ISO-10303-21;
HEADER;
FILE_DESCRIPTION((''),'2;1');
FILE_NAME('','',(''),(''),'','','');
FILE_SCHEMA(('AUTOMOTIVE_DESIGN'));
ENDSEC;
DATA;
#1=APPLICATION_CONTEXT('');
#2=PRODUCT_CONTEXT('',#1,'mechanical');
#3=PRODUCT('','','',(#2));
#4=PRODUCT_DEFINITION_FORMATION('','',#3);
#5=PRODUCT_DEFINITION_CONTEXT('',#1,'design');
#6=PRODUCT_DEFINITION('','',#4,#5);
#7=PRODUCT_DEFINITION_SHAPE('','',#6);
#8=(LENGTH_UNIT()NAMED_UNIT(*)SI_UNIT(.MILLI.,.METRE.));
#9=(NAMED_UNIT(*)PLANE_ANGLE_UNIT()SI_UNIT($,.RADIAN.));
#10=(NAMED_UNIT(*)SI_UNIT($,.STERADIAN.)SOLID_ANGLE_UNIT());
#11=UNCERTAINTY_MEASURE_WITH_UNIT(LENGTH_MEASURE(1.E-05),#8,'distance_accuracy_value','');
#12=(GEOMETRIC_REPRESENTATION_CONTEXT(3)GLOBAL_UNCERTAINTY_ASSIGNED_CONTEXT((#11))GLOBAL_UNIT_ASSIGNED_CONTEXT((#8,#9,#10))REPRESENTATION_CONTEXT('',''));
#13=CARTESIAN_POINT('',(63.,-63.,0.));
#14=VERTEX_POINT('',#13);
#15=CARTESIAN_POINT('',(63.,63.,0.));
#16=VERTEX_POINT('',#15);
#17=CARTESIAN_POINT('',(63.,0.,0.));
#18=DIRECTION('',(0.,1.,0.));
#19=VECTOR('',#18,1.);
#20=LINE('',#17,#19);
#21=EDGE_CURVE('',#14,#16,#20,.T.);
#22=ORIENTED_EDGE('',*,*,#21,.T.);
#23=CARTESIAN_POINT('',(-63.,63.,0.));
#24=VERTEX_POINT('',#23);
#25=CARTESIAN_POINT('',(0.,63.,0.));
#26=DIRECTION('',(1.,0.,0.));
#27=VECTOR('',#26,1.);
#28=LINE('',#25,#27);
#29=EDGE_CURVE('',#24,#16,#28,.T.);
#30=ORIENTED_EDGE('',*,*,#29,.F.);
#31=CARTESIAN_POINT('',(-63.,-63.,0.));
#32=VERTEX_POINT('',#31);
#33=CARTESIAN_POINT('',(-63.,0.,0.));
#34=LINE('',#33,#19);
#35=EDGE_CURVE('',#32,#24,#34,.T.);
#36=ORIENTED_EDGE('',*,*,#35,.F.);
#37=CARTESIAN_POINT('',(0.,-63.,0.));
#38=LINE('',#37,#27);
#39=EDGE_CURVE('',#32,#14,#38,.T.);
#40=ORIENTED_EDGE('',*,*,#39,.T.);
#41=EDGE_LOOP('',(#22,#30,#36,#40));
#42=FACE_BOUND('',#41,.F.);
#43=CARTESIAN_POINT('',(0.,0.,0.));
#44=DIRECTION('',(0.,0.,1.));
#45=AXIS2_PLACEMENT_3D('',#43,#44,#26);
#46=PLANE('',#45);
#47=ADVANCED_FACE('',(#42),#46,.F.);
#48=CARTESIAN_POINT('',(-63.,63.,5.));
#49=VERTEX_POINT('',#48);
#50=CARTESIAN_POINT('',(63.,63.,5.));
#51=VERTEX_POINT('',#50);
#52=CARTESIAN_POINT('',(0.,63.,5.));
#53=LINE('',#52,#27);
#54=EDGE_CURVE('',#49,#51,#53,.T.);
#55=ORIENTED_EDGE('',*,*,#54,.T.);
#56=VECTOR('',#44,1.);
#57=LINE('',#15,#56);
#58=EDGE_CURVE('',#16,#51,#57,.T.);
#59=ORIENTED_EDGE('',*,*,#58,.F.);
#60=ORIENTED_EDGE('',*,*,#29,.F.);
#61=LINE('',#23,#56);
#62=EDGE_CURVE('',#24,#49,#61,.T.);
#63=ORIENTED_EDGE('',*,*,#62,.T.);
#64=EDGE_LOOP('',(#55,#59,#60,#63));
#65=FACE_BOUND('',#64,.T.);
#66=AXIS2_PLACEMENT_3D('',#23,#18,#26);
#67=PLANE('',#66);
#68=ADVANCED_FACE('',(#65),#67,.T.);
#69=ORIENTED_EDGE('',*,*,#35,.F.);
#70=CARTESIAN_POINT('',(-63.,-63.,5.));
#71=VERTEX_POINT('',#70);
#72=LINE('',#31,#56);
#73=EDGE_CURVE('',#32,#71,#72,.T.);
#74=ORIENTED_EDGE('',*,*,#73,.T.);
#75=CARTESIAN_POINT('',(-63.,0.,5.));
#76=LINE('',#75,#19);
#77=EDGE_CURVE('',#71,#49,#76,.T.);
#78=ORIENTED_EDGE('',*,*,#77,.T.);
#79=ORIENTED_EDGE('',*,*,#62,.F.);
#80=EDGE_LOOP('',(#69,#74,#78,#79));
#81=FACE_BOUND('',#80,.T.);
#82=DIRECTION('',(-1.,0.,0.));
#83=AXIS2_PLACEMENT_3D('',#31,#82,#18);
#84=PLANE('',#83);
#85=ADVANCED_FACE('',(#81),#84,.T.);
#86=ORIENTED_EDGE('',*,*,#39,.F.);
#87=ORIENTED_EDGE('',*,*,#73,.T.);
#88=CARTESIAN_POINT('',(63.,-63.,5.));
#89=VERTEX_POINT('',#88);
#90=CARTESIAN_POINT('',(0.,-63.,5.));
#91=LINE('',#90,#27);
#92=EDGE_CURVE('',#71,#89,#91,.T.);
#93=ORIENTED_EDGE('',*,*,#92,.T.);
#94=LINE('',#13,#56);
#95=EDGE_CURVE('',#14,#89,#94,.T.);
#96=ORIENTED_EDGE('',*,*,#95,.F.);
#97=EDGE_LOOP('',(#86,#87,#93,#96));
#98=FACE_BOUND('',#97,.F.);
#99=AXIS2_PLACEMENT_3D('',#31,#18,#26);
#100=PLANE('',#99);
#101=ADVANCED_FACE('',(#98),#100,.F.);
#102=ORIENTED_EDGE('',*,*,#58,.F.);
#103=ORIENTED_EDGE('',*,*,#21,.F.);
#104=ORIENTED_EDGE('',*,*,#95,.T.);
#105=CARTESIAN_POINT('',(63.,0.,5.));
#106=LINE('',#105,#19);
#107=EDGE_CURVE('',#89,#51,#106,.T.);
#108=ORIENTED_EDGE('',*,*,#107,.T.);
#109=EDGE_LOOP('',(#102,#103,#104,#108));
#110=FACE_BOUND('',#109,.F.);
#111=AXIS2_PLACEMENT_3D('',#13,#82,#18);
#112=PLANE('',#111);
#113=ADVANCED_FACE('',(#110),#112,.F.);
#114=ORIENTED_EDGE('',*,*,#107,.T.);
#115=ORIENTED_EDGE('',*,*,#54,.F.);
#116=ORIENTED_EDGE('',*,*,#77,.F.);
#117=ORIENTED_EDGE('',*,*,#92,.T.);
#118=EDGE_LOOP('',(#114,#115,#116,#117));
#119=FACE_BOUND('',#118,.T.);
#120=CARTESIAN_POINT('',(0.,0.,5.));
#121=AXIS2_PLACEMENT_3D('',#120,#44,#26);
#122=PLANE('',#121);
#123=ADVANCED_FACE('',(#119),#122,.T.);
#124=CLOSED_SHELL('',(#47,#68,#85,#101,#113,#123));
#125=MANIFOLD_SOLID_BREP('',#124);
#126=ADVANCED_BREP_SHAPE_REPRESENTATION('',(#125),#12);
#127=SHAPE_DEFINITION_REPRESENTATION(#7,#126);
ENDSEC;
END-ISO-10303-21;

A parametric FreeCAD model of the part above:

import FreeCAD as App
import Part
import Sketcher
from FreeCAD import Vector
Q = App.Units.Quantity


def add_polygon(sketch, points):
    """Adds a closed chain of lines whose ends are joined by coincident constraints."""
    first, n = sketch.GeometryCount, len(points)
    for a, b in zip(points, points[1:] + points[:1]):
        sketch.addGeometry(Part.LineSegment(App.Vector(*a, 0), App.Vector(*b, 0)), False)
    for i in range(n):
        sketch.addConstraint(Sketcher.Constraint("Coincident", first + i, 2, first + (i + 1) % n, 1))

doc = App.newDocument("Part")
body = doc.addObject("PartDesign::Body", "Body")

sketch1 = doc.addObject("Sketcher::SketchObject", "Sketch")
body.addObject(sketch1)
sketch1.AttachmentSupport = (doc.XY_Plane, [""])
sketch1.MapMode = "FlatFace"
add_polygon(sketch1, [(-63, 63), (-63, -63), (63, -63), (63, 63)])
sketch1.addConstraint(Sketcher.Constraint("Vertical", 0))
sketch1.addConstraint(Sketcher.Constraint("Horizontal", 1))
sketch1.addConstraint(Sketcher.Constraint("Vertical", 2))
sketch1.addConstraint(Sketcher.Constraint("Horizontal", 3))
sketch1.addConstraint(Sketcher.Constraint("Symmetric", 0, 2, 2, 2, -1, 1))
sketch1.addConstraint(Sketcher.Constraint("Equal", 3, 0))
sketch1.addConstraint(Sketcher.Constraint("DistanceX", 1, 1, 1, 2, Q("126 mm")))
pad1 = doc.addObject("PartDesign::Pad", "Pad")
body.addObject(pad1)
pad1.Profile = sketch1
pad1.Length = 5

doc.recompute()
